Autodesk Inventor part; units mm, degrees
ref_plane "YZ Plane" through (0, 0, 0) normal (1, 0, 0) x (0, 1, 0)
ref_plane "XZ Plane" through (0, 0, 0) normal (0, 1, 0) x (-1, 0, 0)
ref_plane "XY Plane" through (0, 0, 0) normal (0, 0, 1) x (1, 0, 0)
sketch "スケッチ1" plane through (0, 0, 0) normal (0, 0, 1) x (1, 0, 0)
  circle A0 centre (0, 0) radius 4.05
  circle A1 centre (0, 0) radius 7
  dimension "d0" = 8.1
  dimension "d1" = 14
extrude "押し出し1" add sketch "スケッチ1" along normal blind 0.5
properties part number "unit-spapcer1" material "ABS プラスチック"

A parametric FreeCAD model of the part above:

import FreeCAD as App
import Part
import Sketcher
from FreeCAD import Vector
Q = App.Units.Quantity

doc = App.newDocument("Part")
params = doc.addObject("Spreadsheet::Sheet", "Params")
for row, (alias, value) in enumerate([
    ("sketch1_diameter", "14 mm"),
    ("sketch1_diameter2", "8.1 mm"),
    ("pad1_length", "0.5 mm"),
], start=1):
    params.set(f"A{row}", alias)
    params.set(f"B{row}", "=" + value)
    params.setAlias(f"B{row}", alias)

body = doc.addObject("PartDesign::Body", "Body")

# Sketch on XY plane
sketch1 = body.newObject("Sketcher::SketchObject", "Sketch")
sketch1.AttachmentSupport = (doc.getObject("XY_Plane"), [""])
sketch1.MapMode = "FlatFace"
sketch1.addGeometry(Part.Circle(Vector(0, 0, 0), Vector(0, 0, 1), 7), False)
sketch1.addGeometry(Part.Circle(Vector(0, 0, 0), Vector(0, 0, 1), 4.05), False)
sketch1.addConstraint(Sketcher.Constraint("Coincident", 0, 3, -1, 1))
sketch1.addConstraint(Sketcher.Constraint("Coincident", 1, 3, -1, 1))
sketch1.addConstraint(Sketcher.Constraint("Diameter", 0, Q("14 mm")))
sketch1.addConstraint(Sketcher.Constraint("Diameter", 1, Q("8.1 mm")))
sketch1.setExpression("Constraints[2]", "Params.sketch1_diameter")
sketch1.setExpression("Constraints[3]", "Params.sketch1_diameter2")
pad1 = body.newObject("PartDesign::Pad", "Pad")
pad1.Profile = sketch1
pad1.setExpression("Length", "Params.pad1_length")

doc.recompute()
